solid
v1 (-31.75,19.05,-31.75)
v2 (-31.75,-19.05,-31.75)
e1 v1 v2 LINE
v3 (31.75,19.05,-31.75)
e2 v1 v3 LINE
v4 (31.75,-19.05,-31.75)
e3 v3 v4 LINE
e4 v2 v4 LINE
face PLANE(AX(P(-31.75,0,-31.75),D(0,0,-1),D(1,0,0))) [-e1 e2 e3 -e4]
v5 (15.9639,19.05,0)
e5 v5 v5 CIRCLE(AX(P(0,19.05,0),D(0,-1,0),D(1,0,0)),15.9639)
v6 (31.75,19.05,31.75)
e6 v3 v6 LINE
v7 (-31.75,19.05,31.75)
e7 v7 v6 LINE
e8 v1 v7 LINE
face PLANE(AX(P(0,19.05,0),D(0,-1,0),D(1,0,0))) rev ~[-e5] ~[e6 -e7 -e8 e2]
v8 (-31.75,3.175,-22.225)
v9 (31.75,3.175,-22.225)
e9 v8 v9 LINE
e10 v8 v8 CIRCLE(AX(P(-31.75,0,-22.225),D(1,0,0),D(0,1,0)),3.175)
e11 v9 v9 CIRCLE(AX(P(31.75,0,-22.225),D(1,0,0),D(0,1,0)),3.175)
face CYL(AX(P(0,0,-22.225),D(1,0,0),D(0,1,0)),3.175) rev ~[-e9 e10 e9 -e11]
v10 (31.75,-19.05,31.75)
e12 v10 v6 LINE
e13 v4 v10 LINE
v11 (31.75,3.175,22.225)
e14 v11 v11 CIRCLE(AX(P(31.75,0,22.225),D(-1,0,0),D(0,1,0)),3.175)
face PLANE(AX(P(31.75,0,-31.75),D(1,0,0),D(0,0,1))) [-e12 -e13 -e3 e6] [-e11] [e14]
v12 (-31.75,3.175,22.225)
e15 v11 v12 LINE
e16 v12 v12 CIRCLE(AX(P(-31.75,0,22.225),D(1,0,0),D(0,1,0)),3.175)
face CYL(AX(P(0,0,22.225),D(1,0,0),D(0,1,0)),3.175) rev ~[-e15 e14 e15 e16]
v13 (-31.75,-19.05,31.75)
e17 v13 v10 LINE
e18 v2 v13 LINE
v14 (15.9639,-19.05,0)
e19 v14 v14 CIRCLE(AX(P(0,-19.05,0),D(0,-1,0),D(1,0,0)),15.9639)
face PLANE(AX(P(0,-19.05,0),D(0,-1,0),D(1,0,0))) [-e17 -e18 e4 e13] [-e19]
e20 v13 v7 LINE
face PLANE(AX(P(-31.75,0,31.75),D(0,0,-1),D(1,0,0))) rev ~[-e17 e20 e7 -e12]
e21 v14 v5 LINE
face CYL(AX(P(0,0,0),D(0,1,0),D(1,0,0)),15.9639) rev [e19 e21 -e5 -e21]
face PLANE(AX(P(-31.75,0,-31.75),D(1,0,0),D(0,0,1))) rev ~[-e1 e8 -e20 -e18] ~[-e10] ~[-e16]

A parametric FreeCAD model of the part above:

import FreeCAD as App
import Part
import Sketcher
from FreeCAD import Vector
Q = App.Units.Quantity


def add_polygon(sketch, points):
    """Adds a closed chain of lines whose ends are joined by coincident constraints."""
    first, n = sketch.GeometryCount, len(points)
    for a, b in zip(points, points[1:] + points[:1]):
        sketch.addGeometry(Part.LineSegment(App.Vector(*a, 0), App.Vector(*b, 0)), False)
    for i in range(n):
        sketch.addConstraint(Sketcher.Constraint("Coincident", first + i, 2, first + (i + 1) % n, 1))

doc = App.newDocument("Part")
body = doc.addObject("PartDesign::Body", "Body")

sketch1 = body.newObject("Sketcher::SketchObject", "Sketch")
sketch1.AttachmentSupport = (doc.getObject("XZ_Plane"), [""])
sketch1.MapMode = "FlatFace"
add_polygon(sketch1, [(-31.75, 31.75), (-31.75, -31.75), (31.75, -31.75), (31.75, 31.75)])
sketch1.addGeometry(Part.Circle(Vector(0, 0, 0), Vector(0, 0, 1), 15.9639), False)
sketch1.addConstraint([
    Sketcher.Constraint("Vertical", 0),
    Sketcher.Constraint("Horizontal", 1),
    Sketcher.Constraint("Vertical", 2),
    Sketcher.Constraint("Horizontal", 3),
    Sketcher.Constraint("Coincident", 4, 3, -1, 1),
    Sketcher.Constraint("Symmetric", 0, 2, 2, 2, -1, 1),
    Sketcher.Constraint("Equal", 3, 0),
    Sketcher.Constraint("Diameter", 4, Q("1.257 in")),
    Sketcher.Constraint("DistanceX", 1, 1, 1, 2, Q("2.5 in")),
])
pad1 = body.newObject("PartDesign::Pad", "Pad")
pad1.Profile = sketch1
pad1.Length = Q("1.5 in")
pad1.Midplane = True

sketch2 = body.newObject("Sketcher::SketchObject", "Sketch001")
sketch2.AttachmentSupport = (doc.getObject("YZ_Plane"), [""])
sketch2.MapMode = "FlatFace"
sketch2.addGeometry([
    Part.Circle(Vector(0, 22.225, 0), Vector(0, 0, 1), 3.175),
    Part.Circle(Vector(0, -22.225, 0), Vector(0, 0, 1), 3.175),
], False)
sketch2.addConstraint([
    Sketcher.Constraint("Equal", 0, 1),
    Sketcher.Constraint("Symmetric", 0, 3, 1, 3, -1, 1),
    Sketcher.Constraint("PointOnObject", 0, 3, -2),
    Sketcher.Constraint("Diameter", 0, Q("0.25 in")),
    Sketcher.Constraint("DistanceY", 1, 3, 0, 3, Q("1.75 in")),
])
pocket1 = body.newObject("PartDesign::Pocket", "Pocket")
pocket1.Profile = sketch2
pocket1.Length = Q("2.75 in")
pocket1.Midplane = True

doc.recompute()
